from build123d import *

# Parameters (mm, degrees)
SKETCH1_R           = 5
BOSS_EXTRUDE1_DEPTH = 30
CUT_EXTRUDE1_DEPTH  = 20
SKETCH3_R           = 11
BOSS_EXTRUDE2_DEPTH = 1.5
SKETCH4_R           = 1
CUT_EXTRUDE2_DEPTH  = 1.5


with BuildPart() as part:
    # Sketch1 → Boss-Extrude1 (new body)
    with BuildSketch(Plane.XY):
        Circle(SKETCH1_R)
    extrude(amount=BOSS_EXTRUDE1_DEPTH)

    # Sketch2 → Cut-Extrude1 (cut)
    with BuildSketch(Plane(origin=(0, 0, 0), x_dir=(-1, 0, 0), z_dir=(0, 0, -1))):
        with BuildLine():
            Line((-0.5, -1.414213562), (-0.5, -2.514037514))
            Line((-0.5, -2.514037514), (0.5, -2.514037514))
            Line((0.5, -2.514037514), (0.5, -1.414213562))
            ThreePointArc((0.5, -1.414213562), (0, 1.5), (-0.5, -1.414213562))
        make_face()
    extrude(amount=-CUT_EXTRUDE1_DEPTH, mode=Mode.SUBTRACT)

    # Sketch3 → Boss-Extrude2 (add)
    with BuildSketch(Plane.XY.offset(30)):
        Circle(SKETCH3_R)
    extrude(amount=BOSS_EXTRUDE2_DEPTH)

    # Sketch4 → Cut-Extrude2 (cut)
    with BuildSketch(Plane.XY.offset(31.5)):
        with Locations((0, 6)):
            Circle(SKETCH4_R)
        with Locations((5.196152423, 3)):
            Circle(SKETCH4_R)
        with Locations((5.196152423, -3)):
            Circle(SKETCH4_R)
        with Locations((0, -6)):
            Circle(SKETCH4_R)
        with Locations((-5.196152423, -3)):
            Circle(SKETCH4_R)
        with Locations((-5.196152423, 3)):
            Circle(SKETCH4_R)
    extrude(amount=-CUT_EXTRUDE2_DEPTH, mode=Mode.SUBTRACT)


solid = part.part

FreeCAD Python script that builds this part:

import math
import FreeCAD as App
import Part
import Sketcher
Q = App.Units.Quantity

doc = App.newDocument("Part")
params = doc.addObject("Spreadsheet::Sheet", "Params")
for row, (alias, value) in enumerate([
    ("sketch1_diameter", "10 mm"),
    ("pad1_length", "30 mm"),
    ("sketch2_radius", "1.5 mm"),
    ("sketch2_width", "1 mm"),
    ("pocket1_length", "20 mm"),
    ("sketch3_diameter", "22 mm"),
    ("pad2_length", "1.5 mm"),
    ("sketch4_diameter", "2 mm"),
    ("pocket2_length", "1.5 mm"),
], start=1):
    params.set(f"A{row}", alias)
    params.set(f"B{row}", "=" + value)
    params.setAlias(f"B{row}", alias)

body = doc.addObject("PartDesign::Body", "Body")

sketch1 = body.newObject("Sketcher::SketchObject", "Sketch")
sketch1.AttachmentSupport = (doc.getObject("XY_Plane"), [""])
sketch1.MapMode = "FlatFace"
sketch1.addGeometry(Part.Circle(App.Vector(0, 0, 0), App.Vector(0, 0, 1), 5), False)
sketch1.addConstraint([
    Sketcher.Constraint("Coincident", 0, 3, -1, 1),
    Sketcher.Constraint("Diameter", 0, Q("10 mm")),
])
sketch1.setExpression("Constraints[1]", "Params.sketch1_diameter")
pad1 = body.newObject("PartDesign::Pad", "Pad")
pad1.Profile = sketch1
pad1.setExpression("Length", "Params.pad1_length")

sketch2 = body.newObject("Sketcher::SketchObject", "Sketch001")
sketch2.AttachmentSupport = (doc.getObject("XY_Plane"), [""])
sketch2.MapMode = "FlatFace"
sketch2.addGeometry([
    Part.LineSegment(App.Vector(0.5, -1.4, 0), App.Vector(0.5, -2.5, 0)),
    Part.LineSegment(App.Vector(0.5, -2.5, 0), App.Vector(-0.5, -2.5, 0)),
    Part.LineSegment(App.Vector(-0.5, -2.5, 0), App.Vector(-0.5, -1.4, 0)),
    Part.ArcOfCircle(Part.Circle(App.Vector(0, 0, 0), App.Vector(0, 0, 1), 1.5), math.radians(-71), math.radians(251)),
], False)
sketch2.addConstraint([
    Sketcher.Constraint("Coincident", 0, 2, 1, 1),
    Sketcher.Constraint("Coincident", 1, 2, 2, 1),
    Sketcher.Constraint("Coincident", 2, 2, 3, 2),
    Sketcher.Constraint("Coincident", 3, 1, 0, 1),
    Sketcher.Constraint("Vertical", 0),
    Sketcher.Constraint("Horizontal", 1),
    Sketcher.Constraint("Vertical", 2),
    Sketcher.Constraint("Coincident", 3, 3, -1, 1),
    Sketcher.Constraint("Horizontal", 2, 2, 3, 1),
    Sketcher.Constraint("Radius", 3, Q("1.5 mm")),
    Sketcher.Constraint("DistanceX", 1, 2, 1, 1, Q("1 mm")),
    Sketcher.Constraint("DistanceY", 0, 2, 0, 1, Q("1.099824 mm")),
])
sketch2.setExpression("Constraints[9]", "Params.sketch2_radius")
sketch2.setExpression("Constraints[10]", "Params.sketch2_width")
pocket1 = body.newObject("PartDesign::Pocket", "Pocket")
pocket1.Profile = sketch2
pocket1.setExpression("Length", "Params.pocket1_length")
pocket1.Reversed = True

sketch3 = body.newObject("Sketcher::SketchObject", "Sketch002")
sketch3.AttachmentSupport = (doc.getObject("XY_Plane"), [""])
sketch3.MapMode = "FlatFace"
sketch3.AttachmentOffset = App.Placement(App.Vector(0, 0, 30), App.Rotation())
sketch3.addGeometry(Part.Circle(App.Vector(0, 0, 0), App.Vector(0, 0, 1), 11), False)
sketch3.addConstraint([
    Sketcher.Constraint("Coincident", 0, 3, -1, 1),
    Sketcher.Constraint("Diameter", 0, Q("22 mm")),
])
sketch3.setExpression("Constraints[1]", "Params.sketch3_diameter")
pad2 = body.newObject("PartDesign::Pad", "Pad001")
pad2.Profile = sketch3
pad2.setExpression("Length", "Params.pad2_length")

sketch4 = body.newObject("Sketcher::SketchObject", "Sketch003")
sketch4.AttachmentSupport = (doc.getObject("XY_Plane"), [""])
sketch4.MapMode = "FlatFace"
sketch4.AttachmentOffset = App.Placement(App.Vector(0, 0, 31.5), App.Rotation())
sketch4.addGeometry([
    Part.Circle(App.Vector(0, 6, 0), App.Vector(0, 0, 1), 1),
    Part.Circle(App.Vector(5.2, 3, 0), App.Vector(0, 0, 1), 1),
    Part.Circle(App.Vector(5.2, -3, 0), App.Vector(0, 0, 1), 1),
    Part.Circle(App.Vector(0, -6, 0), App.Vector(0, 0, 1), 1),
    Part.Circle(App.Vector(-5.2, -3, 0), App.Vector(0, 0, 1), 1),
    Part.Circle(App.Vector(-5.2, 3, 0), App.Vector(0, 0, 1), 1),
], False)
sketch4.addConstraint([
    Sketcher.Constraint("Equal", 0, 1),
    Sketcher.Constraint("Equal", 1, 2),
    Sketcher.Constraint("Equal", 2, 3),
    Sketcher.Constraint("Equal", 3, 4),
    Sketcher.Constraint("Equal", 4, 5),
    Sketcher.Constraint("Symmetric", 0, 3, 3, 3, -1, 1),
    Sketcher.Constraint("Symmetric", 1, 3, 4, 3, -1, 1),
    Sketcher.Constraint("Symmetric", 2, 3, 5, 3, -1, 1),
    Sketcher.Constraint("Symmetric", 2, 3, 4, 3, -2),
    Sketcher.Constraint("PointOnObject", 0, 3, -2),
    Sketcher.Constraint("Diameter", 0, Q("2 mm")),
    Sketcher.Constraint("DistanceY", -1, 1, 0, 3, Q("6 mm")),
    Sketcher.Constraint("DistanceY", -1, 1, 1, 3, Q("3 mm")),
    Sketcher.Constraint("DistanceX", -1, 1, 1, 3, Q("5.196152 mm")),
])
sketch4.setExpression("Constraints[10]", "Params.sketch4_diameter")
pocket2 = body.newObject("PartDesign::Pocket", "Pocket001")
pocket2.Profile = sketch4
pocket2.setExpression("Length", "Params.pocket2_length")

doc.recompute()
